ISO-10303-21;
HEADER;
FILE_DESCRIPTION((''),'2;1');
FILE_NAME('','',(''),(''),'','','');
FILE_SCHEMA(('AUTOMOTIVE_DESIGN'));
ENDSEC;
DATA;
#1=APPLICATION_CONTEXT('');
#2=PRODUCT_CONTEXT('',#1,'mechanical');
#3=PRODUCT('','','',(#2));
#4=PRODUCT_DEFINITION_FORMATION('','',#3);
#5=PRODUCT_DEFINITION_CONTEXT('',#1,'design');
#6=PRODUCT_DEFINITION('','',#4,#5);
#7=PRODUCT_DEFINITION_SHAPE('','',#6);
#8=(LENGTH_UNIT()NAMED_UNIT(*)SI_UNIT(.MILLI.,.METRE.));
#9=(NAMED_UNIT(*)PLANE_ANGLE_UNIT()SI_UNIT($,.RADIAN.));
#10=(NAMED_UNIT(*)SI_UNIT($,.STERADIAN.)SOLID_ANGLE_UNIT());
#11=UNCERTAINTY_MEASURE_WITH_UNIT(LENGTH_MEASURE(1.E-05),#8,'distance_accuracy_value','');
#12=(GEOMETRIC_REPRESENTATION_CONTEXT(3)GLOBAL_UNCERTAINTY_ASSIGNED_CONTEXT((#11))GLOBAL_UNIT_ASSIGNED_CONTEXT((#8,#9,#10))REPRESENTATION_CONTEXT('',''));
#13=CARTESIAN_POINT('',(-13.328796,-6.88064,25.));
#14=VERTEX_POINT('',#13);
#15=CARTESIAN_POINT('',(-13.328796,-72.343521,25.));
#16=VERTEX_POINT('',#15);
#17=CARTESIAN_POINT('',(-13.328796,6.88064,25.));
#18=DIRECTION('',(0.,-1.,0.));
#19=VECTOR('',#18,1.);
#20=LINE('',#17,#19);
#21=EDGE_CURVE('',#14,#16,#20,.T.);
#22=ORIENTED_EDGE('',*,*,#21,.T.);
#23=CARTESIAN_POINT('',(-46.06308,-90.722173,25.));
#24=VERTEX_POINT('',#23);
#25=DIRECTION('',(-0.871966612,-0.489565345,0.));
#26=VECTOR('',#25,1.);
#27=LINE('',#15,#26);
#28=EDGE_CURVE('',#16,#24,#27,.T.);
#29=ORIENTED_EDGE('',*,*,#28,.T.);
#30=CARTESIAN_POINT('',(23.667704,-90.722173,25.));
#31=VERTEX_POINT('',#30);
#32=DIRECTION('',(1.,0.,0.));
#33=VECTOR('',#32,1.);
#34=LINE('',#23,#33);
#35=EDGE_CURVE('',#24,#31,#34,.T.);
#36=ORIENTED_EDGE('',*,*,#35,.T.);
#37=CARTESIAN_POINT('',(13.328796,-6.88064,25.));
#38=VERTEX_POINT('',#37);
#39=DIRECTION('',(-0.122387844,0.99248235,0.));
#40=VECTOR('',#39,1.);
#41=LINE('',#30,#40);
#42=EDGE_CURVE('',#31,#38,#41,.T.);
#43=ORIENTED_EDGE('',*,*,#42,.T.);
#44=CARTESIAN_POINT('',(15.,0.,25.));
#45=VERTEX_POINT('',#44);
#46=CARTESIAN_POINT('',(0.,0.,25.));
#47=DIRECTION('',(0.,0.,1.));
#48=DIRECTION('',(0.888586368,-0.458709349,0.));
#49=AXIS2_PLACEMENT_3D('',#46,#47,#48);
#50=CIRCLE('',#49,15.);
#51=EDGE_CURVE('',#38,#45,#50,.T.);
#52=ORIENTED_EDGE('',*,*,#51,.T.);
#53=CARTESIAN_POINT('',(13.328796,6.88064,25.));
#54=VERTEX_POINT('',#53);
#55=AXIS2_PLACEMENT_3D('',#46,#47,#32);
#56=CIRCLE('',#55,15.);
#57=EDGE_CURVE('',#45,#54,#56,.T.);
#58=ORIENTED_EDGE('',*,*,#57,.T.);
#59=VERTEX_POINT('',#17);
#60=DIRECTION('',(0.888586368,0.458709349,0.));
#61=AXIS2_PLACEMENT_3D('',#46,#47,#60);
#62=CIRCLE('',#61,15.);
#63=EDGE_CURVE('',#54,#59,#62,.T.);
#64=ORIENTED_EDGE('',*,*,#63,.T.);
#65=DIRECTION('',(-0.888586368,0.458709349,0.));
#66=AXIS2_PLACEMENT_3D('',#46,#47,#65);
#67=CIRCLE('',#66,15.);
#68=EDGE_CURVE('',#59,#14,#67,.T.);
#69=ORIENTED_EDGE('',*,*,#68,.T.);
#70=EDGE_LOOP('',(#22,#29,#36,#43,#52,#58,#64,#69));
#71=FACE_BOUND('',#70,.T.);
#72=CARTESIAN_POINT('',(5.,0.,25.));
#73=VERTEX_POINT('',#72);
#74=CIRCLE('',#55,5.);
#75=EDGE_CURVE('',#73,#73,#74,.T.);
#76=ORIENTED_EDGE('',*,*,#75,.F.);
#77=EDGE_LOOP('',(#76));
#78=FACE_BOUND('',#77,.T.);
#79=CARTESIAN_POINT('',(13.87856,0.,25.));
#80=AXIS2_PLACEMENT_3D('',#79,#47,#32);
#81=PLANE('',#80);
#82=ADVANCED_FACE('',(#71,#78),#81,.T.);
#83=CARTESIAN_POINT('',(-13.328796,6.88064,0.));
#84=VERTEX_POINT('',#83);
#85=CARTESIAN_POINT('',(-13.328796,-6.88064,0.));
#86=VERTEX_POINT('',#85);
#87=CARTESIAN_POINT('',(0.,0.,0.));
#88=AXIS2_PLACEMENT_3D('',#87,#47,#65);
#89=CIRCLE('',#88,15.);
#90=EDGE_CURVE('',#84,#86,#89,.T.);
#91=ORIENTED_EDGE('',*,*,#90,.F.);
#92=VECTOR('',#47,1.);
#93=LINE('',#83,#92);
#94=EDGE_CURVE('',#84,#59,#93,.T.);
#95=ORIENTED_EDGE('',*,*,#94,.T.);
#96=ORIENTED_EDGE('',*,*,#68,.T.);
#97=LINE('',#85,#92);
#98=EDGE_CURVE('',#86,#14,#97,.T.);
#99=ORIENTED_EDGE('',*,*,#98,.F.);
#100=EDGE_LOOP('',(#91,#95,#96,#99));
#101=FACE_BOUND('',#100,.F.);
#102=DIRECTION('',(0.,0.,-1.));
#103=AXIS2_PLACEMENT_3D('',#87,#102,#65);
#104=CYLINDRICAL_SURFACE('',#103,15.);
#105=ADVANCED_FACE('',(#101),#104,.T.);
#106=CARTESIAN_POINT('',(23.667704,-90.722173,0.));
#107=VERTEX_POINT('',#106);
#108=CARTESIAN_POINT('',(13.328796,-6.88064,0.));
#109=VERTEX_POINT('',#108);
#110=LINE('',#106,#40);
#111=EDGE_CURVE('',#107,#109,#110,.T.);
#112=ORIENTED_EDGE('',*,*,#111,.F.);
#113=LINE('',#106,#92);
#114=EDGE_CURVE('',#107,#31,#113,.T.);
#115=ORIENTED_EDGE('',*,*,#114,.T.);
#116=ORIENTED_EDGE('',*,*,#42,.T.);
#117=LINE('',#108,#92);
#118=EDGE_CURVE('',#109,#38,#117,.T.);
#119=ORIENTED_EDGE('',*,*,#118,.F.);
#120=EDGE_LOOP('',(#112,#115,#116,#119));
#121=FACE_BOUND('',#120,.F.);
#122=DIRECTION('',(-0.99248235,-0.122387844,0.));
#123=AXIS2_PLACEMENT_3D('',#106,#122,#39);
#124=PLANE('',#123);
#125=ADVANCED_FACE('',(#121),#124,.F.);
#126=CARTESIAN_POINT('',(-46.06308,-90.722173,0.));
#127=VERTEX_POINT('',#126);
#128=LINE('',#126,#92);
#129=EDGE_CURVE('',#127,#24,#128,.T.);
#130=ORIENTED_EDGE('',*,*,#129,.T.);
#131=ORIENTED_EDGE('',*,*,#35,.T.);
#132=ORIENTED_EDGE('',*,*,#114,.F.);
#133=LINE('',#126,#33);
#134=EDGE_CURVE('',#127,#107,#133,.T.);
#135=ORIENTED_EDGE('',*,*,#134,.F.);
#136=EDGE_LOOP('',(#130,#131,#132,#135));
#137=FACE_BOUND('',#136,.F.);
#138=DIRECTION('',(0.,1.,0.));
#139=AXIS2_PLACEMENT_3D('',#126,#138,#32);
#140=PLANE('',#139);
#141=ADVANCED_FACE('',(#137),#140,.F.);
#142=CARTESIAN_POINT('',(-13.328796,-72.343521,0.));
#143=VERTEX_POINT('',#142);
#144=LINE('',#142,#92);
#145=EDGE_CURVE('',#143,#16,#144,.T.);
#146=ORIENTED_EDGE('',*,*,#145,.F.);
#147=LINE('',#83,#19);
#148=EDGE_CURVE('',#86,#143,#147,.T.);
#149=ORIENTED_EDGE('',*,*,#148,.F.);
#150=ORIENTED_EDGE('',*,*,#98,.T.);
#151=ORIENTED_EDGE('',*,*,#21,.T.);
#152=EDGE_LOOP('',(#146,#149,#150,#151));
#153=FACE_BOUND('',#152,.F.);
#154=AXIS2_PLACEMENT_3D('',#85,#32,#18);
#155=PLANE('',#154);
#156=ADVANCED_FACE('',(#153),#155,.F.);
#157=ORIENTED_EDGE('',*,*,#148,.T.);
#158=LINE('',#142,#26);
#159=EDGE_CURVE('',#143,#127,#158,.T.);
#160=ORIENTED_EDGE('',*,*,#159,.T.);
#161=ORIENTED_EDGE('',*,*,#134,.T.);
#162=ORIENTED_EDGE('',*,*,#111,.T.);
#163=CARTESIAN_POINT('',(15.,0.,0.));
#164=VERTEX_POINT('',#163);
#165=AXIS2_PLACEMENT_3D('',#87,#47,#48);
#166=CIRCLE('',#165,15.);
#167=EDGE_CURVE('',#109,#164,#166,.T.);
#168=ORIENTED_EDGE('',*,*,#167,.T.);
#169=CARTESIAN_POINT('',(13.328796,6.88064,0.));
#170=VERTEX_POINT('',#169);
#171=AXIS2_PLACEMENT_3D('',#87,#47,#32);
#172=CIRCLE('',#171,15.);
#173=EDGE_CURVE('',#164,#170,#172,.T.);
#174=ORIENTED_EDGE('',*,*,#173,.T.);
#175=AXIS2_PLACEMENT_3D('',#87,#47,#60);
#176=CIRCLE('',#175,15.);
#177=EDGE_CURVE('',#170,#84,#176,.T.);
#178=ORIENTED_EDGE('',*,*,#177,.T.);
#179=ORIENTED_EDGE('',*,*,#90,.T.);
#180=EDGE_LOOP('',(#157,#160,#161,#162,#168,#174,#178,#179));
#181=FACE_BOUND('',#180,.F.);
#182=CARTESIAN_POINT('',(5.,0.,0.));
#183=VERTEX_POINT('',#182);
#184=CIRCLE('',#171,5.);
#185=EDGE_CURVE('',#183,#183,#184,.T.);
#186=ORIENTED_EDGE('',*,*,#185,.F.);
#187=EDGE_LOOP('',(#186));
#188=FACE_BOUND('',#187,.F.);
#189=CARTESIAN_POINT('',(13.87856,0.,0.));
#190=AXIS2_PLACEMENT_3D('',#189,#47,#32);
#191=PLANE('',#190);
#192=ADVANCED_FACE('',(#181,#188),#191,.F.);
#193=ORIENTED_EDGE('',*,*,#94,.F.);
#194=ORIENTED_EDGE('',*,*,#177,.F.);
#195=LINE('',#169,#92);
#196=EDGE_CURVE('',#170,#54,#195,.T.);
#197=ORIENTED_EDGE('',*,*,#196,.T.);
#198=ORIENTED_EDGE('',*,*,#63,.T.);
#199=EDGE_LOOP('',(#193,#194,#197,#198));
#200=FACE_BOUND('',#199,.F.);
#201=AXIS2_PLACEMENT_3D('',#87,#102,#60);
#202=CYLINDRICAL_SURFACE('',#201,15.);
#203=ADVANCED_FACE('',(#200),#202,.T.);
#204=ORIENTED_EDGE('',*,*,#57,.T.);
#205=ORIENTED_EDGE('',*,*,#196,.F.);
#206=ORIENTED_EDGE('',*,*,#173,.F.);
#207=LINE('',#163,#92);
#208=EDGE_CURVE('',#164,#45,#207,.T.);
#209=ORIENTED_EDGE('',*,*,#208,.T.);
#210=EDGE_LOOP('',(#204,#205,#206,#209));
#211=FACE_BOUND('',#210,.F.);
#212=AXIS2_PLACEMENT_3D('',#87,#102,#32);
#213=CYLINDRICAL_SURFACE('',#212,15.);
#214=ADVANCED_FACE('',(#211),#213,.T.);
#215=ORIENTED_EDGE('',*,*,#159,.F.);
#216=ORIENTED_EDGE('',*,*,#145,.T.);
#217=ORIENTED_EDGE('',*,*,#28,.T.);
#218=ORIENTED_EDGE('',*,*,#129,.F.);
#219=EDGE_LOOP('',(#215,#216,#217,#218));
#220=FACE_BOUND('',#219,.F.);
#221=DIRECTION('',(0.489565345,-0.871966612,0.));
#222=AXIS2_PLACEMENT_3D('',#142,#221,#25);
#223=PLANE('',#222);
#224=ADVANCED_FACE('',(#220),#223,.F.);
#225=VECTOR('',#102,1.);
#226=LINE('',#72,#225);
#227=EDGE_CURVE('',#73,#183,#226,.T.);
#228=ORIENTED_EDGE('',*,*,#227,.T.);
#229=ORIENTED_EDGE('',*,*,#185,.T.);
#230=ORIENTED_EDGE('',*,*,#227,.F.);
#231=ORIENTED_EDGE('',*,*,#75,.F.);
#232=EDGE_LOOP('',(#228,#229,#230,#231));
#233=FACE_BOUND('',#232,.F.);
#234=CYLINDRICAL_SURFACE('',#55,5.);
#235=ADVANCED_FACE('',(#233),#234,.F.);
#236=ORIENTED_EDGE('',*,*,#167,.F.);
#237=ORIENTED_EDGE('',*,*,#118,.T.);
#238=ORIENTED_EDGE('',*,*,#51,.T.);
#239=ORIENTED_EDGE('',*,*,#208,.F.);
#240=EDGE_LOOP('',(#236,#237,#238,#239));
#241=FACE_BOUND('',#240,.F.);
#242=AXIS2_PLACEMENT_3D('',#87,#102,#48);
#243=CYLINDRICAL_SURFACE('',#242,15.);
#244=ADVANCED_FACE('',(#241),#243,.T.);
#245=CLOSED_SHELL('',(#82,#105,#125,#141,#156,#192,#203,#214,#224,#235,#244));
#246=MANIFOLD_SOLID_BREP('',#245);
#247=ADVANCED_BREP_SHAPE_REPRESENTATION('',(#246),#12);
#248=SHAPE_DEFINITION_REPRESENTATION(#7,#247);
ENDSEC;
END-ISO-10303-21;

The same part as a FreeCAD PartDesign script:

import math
import FreeCAD as App
import Part
import Sketcher
Q = App.Units.Quantity

doc = App.newDocument("Part")
body = doc.addObject("PartDesign::Body", "Body")

sketch1 = body.newObject("Sketcher::SketchObject", "Sketch")
sketch1.AttachmentSupport = (doc.getObject("XY_Plane"), [""])
sketch1.MapMode = "FlatFace"
sketch1.addGeometry([
    Part.ArcOfCircle(Part.Circle(App.Vector(0, 0, 0), App.Vector(0, 0, 1), 15), math.radians(-27), math.radians(0)),
    Part.ArcOfCircle(Part.Circle(App.Vector(0, 0, 0), App.Vector(0, 0, 1), 15), math.radians(0), math.radians(27)),
    Part.ArcOfCircle(Part.Circle(App.Vector(0, 0, 0), App.Vector(0, 0, 1), 15), math.radians(27), math.radians(153)),
    Part.ArcOfCircle(Part.Circle(App.Vector(0, 0, 0), App.Vector(0, 0, 1), 15), math.radians(153), math.radians(207)),
    Part.LineSegment(App.Vector(-13, -7, 0), App.Vector(-13, -72, 0)),
    Part.LineSegment(App.Vector(-13, -72, 0), App.Vector(-46, -91, 0)),
    Part.LineSegment(App.Vector(-46, -91, 0), App.Vector(24, -91, 0)),
    Part.LineSegment(App.Vector(24, -91, 0), App.Vector(13, -7, 0)),
], False)
sketch1.addConstraint([
    Sketcher.Constraint("Tangent", 0, 2, 1, 1),
    Sketcher.Constraint("Tangent", 1, 2, 2, 1),
    Sketcher.Constraint("Tangent", 2, 2, 3, 1),
    Sketcher.Constraint("Coincident", 3, 2, 4, 1),
    Sketcher.Constraint("Coincident", 4, 2, 5, 1),
    Sketcher.Constraint("Coincident", 5, 2, 6, 1),
    Sketcher.Constraint("Coincident", 6, 2, 7, 1),
    Sketcher.Constraint("Coincident", 7, 2, 0, 1),
    Sketcher.Constraint("Vertical", 4),
    Sketcher.Constraint("Horizontal", 6),
    Sketcher.Constraint("Coincident", 0, 3, -1, 1),
    Sketcher.Constraint("Coincident", 2, 3, -1, 1),
    Sketcher.Constraint("Equal", 2, 3),
    Sketcher.Constraint("PointOnObject", 0, 2, -1),
    Sketcher.Constraint("Horizontal", 1, 2, 2, 2),
    Sketcher.Constraint("Horizontal", 3, 2, 7, 2),
    Sketcher.Constraint("Vertical", 2, 2, 3, 2),
    Sketcher.Constraint("Radius", 0, Q("15 mm")),
    Sketcher.Constraint("Distance", 7, Q("84.476599 mm")),
    Sketcher.Constraint("DistanceY", 4, 2, 4, 1, Q("65.462881 mm")),
    Sketcher.Constraint("DistanceX", 4, 2, 6, 2, Q("36.9965 mm")),
    Sketcher.Constraint("DistanceX", 6, 1, 6, 2, Q("69.730785 mm")),
    Sketcher.Constraint("DistanceY", -1, 1, 1, 2, Q("6.88064 mm")),
])
pad1 = body.newObject("PartDesign::Pad", "Pad")
pad1.Profile = sketch1
pad1.Length = 25

sketch2 = body.newObject("Sketcher::SketchObject", "Sketch001")
sketch2.AttachmentSupport = (doc.getObject("XY_Plane"), [""])
sketch2.MapMode = "FlatFace"
sketch2.AttachmentOffset = App.Placement(App.Vector(0, 0, 25), App.Rotation())
sketch2.addGeometry(Part.Circle(App.Vector(0, 0, 0), App.Vector(0, 0, 1), 5), False)
sketch2.addConstraint([
    Sketcher.Constraint("Coincident", 0, 3, -1, 1),
    Sketcher.Constraint("Diameter", 0, Q("10 mm")),
])
pocket1 = body.newObject("PartDesign::Pocket", "Pocket")
pocket1.Profile = sketch2
pocket1.Length = 25

doc.recompute()
